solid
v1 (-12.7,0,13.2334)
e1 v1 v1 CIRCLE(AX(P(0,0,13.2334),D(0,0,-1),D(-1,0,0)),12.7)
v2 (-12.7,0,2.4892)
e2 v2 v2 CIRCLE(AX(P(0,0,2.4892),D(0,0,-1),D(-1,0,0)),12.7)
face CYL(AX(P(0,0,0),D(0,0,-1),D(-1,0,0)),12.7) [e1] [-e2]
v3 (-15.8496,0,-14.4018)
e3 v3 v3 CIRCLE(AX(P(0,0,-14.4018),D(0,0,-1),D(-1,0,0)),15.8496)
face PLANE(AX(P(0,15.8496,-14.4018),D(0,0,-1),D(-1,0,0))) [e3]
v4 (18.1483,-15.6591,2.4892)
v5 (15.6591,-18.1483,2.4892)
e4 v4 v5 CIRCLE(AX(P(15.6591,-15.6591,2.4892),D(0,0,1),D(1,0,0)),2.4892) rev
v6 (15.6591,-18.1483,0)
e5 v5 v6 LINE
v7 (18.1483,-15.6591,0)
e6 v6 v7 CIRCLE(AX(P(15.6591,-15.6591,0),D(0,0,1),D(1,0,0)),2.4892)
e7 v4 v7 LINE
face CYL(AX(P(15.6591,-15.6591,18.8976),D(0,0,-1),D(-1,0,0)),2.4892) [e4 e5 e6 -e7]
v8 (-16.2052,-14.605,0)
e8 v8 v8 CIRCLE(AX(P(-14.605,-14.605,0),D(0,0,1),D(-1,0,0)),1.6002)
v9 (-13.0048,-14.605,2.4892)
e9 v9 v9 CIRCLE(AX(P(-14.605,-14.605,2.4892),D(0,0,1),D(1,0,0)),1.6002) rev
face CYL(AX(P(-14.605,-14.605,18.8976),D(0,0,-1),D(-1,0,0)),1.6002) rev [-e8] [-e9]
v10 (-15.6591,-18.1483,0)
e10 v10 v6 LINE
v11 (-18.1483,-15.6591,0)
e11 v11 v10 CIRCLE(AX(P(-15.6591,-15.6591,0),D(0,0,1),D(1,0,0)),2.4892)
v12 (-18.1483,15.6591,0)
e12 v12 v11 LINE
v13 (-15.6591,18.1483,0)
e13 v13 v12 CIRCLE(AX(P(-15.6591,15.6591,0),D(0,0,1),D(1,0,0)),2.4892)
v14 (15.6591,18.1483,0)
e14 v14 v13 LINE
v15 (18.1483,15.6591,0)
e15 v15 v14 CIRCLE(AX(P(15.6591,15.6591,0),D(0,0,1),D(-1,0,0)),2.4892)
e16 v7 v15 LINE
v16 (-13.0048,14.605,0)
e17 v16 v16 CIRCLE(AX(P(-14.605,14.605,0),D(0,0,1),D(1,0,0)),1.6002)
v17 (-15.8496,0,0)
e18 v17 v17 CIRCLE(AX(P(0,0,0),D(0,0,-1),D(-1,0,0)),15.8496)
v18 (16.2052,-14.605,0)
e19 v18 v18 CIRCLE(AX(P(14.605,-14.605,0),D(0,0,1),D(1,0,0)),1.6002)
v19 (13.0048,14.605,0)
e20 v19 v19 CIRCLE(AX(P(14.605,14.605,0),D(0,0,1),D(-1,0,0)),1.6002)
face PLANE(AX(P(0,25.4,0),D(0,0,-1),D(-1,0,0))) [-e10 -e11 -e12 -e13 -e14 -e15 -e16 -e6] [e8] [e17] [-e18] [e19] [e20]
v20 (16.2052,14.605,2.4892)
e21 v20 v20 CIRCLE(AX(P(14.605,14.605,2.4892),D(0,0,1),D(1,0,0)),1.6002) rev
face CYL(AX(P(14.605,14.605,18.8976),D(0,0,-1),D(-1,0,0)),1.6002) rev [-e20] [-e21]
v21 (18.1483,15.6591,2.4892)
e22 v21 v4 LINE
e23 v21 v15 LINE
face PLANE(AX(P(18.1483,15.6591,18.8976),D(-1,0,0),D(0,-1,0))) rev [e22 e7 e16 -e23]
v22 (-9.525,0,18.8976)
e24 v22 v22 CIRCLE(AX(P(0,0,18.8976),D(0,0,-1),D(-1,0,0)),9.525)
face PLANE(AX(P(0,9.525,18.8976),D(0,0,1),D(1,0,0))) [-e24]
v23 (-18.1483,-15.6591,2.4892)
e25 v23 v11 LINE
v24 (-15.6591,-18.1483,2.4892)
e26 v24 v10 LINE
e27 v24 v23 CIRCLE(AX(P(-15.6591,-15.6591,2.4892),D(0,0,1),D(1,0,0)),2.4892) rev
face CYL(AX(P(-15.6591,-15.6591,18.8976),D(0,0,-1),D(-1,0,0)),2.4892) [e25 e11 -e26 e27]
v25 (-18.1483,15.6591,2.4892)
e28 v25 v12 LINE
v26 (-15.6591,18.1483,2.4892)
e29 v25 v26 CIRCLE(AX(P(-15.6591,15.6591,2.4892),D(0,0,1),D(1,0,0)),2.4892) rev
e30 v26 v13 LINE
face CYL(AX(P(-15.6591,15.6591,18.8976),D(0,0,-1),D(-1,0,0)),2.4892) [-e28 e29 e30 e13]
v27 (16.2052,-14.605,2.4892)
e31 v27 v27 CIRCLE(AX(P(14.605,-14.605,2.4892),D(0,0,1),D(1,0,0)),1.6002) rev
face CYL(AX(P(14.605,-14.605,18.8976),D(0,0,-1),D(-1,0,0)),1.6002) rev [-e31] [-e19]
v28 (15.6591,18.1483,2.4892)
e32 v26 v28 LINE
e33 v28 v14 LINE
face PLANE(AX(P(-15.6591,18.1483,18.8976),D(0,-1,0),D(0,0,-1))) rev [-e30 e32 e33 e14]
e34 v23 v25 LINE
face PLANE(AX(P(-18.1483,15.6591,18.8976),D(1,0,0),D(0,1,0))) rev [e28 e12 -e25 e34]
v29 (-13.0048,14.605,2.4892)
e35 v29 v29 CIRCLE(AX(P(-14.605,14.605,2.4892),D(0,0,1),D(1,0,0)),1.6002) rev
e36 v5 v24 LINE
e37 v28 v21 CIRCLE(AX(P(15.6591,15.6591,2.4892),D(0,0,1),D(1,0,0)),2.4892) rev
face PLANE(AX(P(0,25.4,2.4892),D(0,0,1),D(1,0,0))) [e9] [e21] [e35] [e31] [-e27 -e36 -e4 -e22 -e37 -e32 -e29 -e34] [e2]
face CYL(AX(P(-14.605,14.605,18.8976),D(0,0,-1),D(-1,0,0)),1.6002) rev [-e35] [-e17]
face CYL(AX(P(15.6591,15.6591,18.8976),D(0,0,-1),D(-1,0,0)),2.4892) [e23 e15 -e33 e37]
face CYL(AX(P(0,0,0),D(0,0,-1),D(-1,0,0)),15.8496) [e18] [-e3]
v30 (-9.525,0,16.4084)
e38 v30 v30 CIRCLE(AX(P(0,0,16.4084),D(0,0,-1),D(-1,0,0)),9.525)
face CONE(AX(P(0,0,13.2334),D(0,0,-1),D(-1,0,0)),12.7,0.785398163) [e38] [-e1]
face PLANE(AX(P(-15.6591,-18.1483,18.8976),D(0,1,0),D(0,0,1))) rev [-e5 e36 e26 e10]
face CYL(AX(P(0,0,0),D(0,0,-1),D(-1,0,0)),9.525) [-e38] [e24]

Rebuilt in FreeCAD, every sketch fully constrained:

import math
import FreeCAD as App
import Part
import Sketcher

V = App.Vector
Q = App.Units.Quantity

doc = App.newDocument("Part")
params = doc.addObject("Spreadsheet::Sheet", "Params")
for row, (alias, value) in enumerate([
    ("sketch1_width", "0.5 in"),
    ("sketch1_width2", "0.375 in"),
    ("sketch1_width3", "0.624 in"),
    ("sketch1_height", "0.098 in"),
    ("sketch1_height2", "0.423 in"),
    ("revolution_angle", "360 deg"),
    ("sketch2_radius", "0.098 in"),
    ("sketch2_width", "1.233 in"),
    ("sketch3_diameter", "0.126 in"),
], start=1):
    params.set(f"A{row}", alias)
    params.set(f"B{row}", "=" + value)
    params.setAlias(f"B{row}", alias)

body = doc.addObject("PartDesign::Body", "Body")

# Sketch on YZ plane
sketch1 = body.newObject("Sketcher::SketchObject", "Sketch")
sketch1.AttachmentSupport = (doc.getObject("YZ_Plane"), [""])
sketch1.MapMode = "FlatFace"
sketch1.addGeometry([
    Part.LineSegment(V(25.4, 0, 0), V(25.4, 2.4892, 0)),  # 0
    Part.LineSegment(V(25.4, 2.4892, 0), V(12.7, 2.4892, 0)),  # 1
    Part.LineSegment(V(12.7, 2.4892, 0), V(12.7, 13.2334, 0)),  # 2
    Part.LineSegment(V(12.7, 13.2334, 0), V(9.525, 16.4084, 0)),  # 3
    Part.LineSegment(V(9.525, 16.4084, 0), V(9.525, 18.8976, 0)),  # 4
    Part.LineSegment(V(9.525, 18.8976, 0), V(0, 18.8976, 0)),  # 5
    Part.LineSegment(V(0, 18.8976, 0), V(0, -14.4018, 0)),  # 6
    Part.LineSegment(V(0, -14.4018, 0), V(15.8496, -14.4018, 0)),  # 7
    Part.LineSegment(V(15.8496, -14.4018, 0), V(15.8496, 0, 0)),  # 8
    Part.LineSegment(V(15.8496, 0, 0), V(25.4, 0, 0)),  # 9
], False)
sketch1.addConstraint([
    Sketcher.Constraint("Coincident", 0, 2, 1, 1),
    Sketcher.Constraint("Coincident", 1, 2, 2, 1),
    Sketcher.Constraint("Coincident", 2, 2, 3, 1),
    Sketcher.Constraint("Coincident", 3, 2, 4, 1),
    Sketcher.Constraint("Coincident", 4, 2, 5, 1),
    Sketcher.Constraint("Coincident", 5, 2, 6, 1),
    Sketcher.Constraint("Coincident", 6, 2, 7, 1),
    Sketcher.Constraint("Coincident", 7, 2, 8, 1),
    Sketcher.Constraint("Coincident", 8, 2, 9, 1),
    Sketcher.Constraint("Coincident", 9, 2, 0, 1),
    Sketcher.Constraint("Vertical", 0),
    Sketcher.Constraint("Horizontal", 1),
    Sketcher.Constraint("Vertical", 2),
    Sketcher.Constraint("Vertical", 4),
    Sketcher.Constraint("Horizontal", 5),
    Sketcher.Constraint("Vertical", 6),
    Sketcher.Constraint("Horizontal", 7),
    Sketcher.Constraint("Vertical", 8),
    Sketcher.Constraint("Horizontal", 9),
    Sketcher.Constraint("PointOnObject", 5, 2, -2),
    Sketcher.Constraint("PointOnObject", 8, 2, -1),
    Sketcher.Constraint("Equal", 0, 4),
    Sketcher.Constraint("DistanceX", 1, 2, 1, 1, Q("0.5 in")),
    Sketcher.Constraint("DistanceX", -1, 1, 0, 2, Q("1 in")),
    Sketcher.Constraint("Angle", 3, Q("135 deg")),
    Sketcher.Constraint("DistanceX", 5, 2, 5, 1, Q("0.375 in")),
    Sketcher.Constraint("DistanceX", 7, 1, 7, 2, Q("0.624 in")),
    Sketcher.Constraint("DistanceY", 0, 1, 0, 2, Q("0.098 in")),
    Sketcher.Constraint("DistanceY", 2, 1, 2, 2, Q("0.423 in")),
    Sketcher.Constraint("DistanceY", 6, 2, 6, 1, Q("1.311 in")),
])
sketch1.setExpression("Constraints[22]", "Params.sketch1_width")
sketch1.setExpression("Constraints[25]", "Params.sketch1_width2")
sketch1.setExpression("Constraints[26]", "Params.sketch1_width3")
sketch1.setExpression("Constraints[27]", "Params.sketch1_height")
sketch1.setExpression("Constraints[28]", "Params.sketch1_height2")
revolution = body.newObject("PartDesign::Revolution", "Revolution")
revolution.Profile = sketch1
revolution.ReferenceAxis = (sketch1, ["V_Axis"])
revolution.setExpression("Angle", "Params.revolution_angle")

# Sketch on XY plane
sketch2 = body.newObject("Sketcher::SketchObject", "Sketch001")
sketch2.AttachmentSupport = (doc.getObject("XY_Plane"), [""])
sketch2.MapMode = "FlatFace"
sketch2.addGeometry([
    Part.LineSegment(V(-34.318, 34.318, 0), V(-34.318, -34.318, 0)),  # 0
    Part.LineSegment(V(-34.318, -34.318, 0), V(34.318, -34.318, 0)),  # 1
    Part.LineSegment(V(34.318, -34.318, 0), V(34.318, 34.318, 0)),  # 2
    Part.LineSegment(V(34.318, 34.318, 0), V(-34.318, 34.318, 0)),  # 3
    Part.ArcOfCircle(Part.Circle(V(-15.6591, 15.6591, 0), V(0, 0, 1), 2.4892), math.radians(90), math.radians(180)),  # 4
    Part.LineSegment(V(-15.6591, 18.1483, 0), V(15.6591, 18.1483, 0)),  # 5
    Part.ArcOfCircle(Part.Circle(V(15.6591, 15.6591, 0), V(0, 0, 1), 2.4892), math.radians(0), math.radians(90)),  # 6
    Part.LineSegment(V(18.1483, 15.6591, 0), V(18.1483, -15.6591, 0)),  # 7
    Part.ArcOfCircle(Part.Circle(V(15.6591, -15.6591, 0), V(0, 0, 1), 2.4892), math.radians(-90), math.radians(0)),  # 8
    Part.LineSegment(V(15.6591, -18.1483, 0), V(-15.6591, -18.1483, 0)),  # 9
    Part.ArcOfCircle(Part.Circle(V(-15.6591, -15.6591, 0), V(0, 0, 1), 2.4892), math.radians(180), math.radians(270)),  # 10
    Part.LineSegment(V(-18.1483, -15.6591, 0), V(-18.1483, 15.6591, 0)),  # 11
], False)
sketch2.addConstraint([
    Sketcher.Constraint("Coincident", 0, 2, 1, 1),
    Sketcher.Constraint("Coincident", 1, 2, 2, 1),
    Sketcher.Constraint("Coincident", 2, 2, 3, 1),
    Sketcher.Constraint("Coincident", 3, 2, 0, 1),
    Sketcher.Constraint("Tangent", 4, 1, 5, 1),
    Sketcher.Constraint("Tangent", 5, 2, 6, 2),
    Sketcher.Constraint("Tangent", 6, 1, 7, 1),
    Sketcher.Constraint("Tangent", 7, 2, 8, 2),
    Sketcher.Constraint("Tangent", 8, 1, 9, 1),
    Sketcher.Constraint("Tangent", 9, 2, 10, 2),
    Sketcher.Constraint("Tangent", 10, 1, 11, 1),
    Sketcher.Constraint("Tangent", 11, 2, 4, 2),
    Sketcher.Constraint("Vertical", 0),
    Sketcher.Constraint("Horizontal", 1),
    Sketcher.Constraint("Vertical", 2),
    Sketcher.Constraint("Horizontal", 3),
    Sketcher.Constraint("Horizontal", 5),
    Sketcher.Constraint("Vertical", 7),
    Sketcher.Constraint("Horizontal", 9),
    Sketcher.Constraint("Vertical", 11),
    Sketcher.Constraint("Equal", 4, 6),
    Sketcher.Constraint("Equal", 6, 8),
    Sketcher.Constraint("Equal", 8, 10),
    Sketcher.Constraint("Symmetric", 4, 3, 8, 3, -1, 1),
    Sketcher.Constraint("Symmetric", 0, 2, 2, 2, -1, 1),
    Sketcher.Constraint("Equal", 3, 0),
    Sketcher.Constraint("Equal", 9, 7),
    Sketcher.Constraint("Radius", 4, Q("0.098 in")),
    Sketcher.Constraint("DistanceX", 5, 1, 5, 2, Q("1.233 in")),
    Sketcher.Constraint("DistanceX", 1, 1, 1, 2, 68.636),
])
sketch2.setExpression("Constraints[27]", "Params.sketch2_radius")
sketch2.setExpression("Constraints[28]", "Params.sketch2_width")
pocket1 = body.newObject("PartDesign::Pocket", "Pocket")
pocket1.Profile = sketch2
pocket1.Type = "ThroughAll"
pocket1.Reversed = True

# Sketch on XY plane
sketch3 = body.newObject("Sketcher::SketchObject", "Sketch002")
sketch3.AttachmentSupport = (doc.getObject("XY_Plane"), [""])
sketch3.MapMode = "FlatFace"
sketch3.addGeometry([
    Part.Circle(V(-14.605, 14.605, 0), V(0, 0, 1), 1.6002),
    Part.Circle(V(14.605, 14.605, 0), V(0, 0, 1), 1.6002),
    Part.Circle(V(-14.605, -14.605, 0), V(0, 0, 1), 1.6002),
    Part.Circle(V(14.605, -14.605, 0), V(0, 0, 1), 1.6002),
], False)
sketch3.addConstraint([
    Sketcher.Constraint("Equal", 0, 1),
    Sketcher.Constraint("Equal", 1, 2),
    Sketcher.Constraint("Equal", 2, 3),
    Sketcher.Constraint("Symmetric", 1, 3, 2, 3, -1, 1),
    Sketcher.Constraint("Symmetric", 0, 3, 3, 3, -1, 1),
    Sketcher.Constraint("Symmetric", 0, 3, 1, 3, -2),
    Sketcher.Constraint("Diameter", 0, Q("0.126 in")),
    Sketcher.Constraint("DistanceX", 0, 3, 1, 3, Q("1.15 in")),
    Sketcher.Constraint("DistanceY", 2, 3, 0, 3, Q("1.15 in")),
])
sketch3.setExpression("Constraints[6]", "Params.sketch3_diameter")
pocket2 = body.newObject("PartDesign::Pocket", "Pocket001")
pocket2.Profile = sketch3
pocket2.Type = "ThroughAll"
pocket2.Reversed = True

doc.recompute()
